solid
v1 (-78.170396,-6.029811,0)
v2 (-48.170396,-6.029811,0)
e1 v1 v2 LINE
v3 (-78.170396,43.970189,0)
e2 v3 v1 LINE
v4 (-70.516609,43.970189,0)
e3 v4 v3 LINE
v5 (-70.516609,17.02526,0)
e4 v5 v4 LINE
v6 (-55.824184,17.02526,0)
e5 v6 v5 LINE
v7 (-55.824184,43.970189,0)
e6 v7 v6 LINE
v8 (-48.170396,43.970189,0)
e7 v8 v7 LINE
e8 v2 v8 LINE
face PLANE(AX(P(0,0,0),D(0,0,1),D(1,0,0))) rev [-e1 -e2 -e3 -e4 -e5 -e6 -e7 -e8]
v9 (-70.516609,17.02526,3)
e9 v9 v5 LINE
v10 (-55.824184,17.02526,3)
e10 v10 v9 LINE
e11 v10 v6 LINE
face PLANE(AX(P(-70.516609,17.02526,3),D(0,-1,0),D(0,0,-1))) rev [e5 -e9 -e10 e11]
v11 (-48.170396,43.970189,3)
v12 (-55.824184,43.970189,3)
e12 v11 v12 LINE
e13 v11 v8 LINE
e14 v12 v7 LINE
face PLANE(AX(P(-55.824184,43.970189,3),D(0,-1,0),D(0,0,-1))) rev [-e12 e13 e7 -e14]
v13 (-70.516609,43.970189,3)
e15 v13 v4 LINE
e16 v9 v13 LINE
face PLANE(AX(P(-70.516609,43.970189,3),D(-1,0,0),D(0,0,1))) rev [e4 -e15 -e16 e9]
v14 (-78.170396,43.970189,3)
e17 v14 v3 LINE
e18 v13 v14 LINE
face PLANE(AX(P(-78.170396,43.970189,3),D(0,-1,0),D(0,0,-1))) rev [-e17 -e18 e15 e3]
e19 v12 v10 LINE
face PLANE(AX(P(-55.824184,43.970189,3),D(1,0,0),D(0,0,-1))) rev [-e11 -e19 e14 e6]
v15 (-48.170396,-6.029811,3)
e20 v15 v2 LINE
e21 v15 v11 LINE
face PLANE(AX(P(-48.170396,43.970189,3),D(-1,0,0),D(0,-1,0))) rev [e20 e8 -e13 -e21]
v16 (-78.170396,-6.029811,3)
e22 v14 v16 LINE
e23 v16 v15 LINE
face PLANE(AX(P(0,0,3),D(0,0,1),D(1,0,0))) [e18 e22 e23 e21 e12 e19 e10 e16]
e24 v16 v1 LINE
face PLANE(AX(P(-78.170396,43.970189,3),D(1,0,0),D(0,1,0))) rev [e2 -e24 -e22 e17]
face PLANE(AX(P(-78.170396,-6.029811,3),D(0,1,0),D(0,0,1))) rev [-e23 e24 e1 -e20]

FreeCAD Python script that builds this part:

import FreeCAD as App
import Part
import Sketcher
from FreeCAD import Vector
Q = App.Units.Quantity

doc = App.newDocument("Part")
body = doc.addObject("PartDesign::Body", "Body")

# Sketch on XY plane
sketch1 = body.newObject("Sketcher::SketchObject", "Sketch")
sketch1.AttachmentSupport = (doc.getObject("XY_Plane"), [""])
sketch1.MapMode = "FlatFace"
sketch1.addGeometry([
    Part.LineSegment(Vector(-48, 44, 0), Vector(-56, 44, 0)),  # 0
    Part.LineSegment(Vector(-56, 44, 0), Vector(-56, 17, 0)),  # 1
    Part.LineSegment(Vector(-56, 17, 0), Vector(-71, 17, 0)),  # 2
    Part.LineSegment(Vector(-71, 17, 0), Vector(-71, 44, 0)),  # 3
    Part.LineSegment(Vector(-71, 44, 0), Vector(-78, 44, 0)),  # 4
    Part.LineSegment(Vector(-78, 44, 0), Vector(-78, -6, 0)),  # 5
    Part.LineSegment(Vector(-78, -6, 0), Vector(-48, -6, 0)),  # 6
    Part.LineSegment(Vector(-48, -6, 0), Vector(-48, 44, 0)),  # 7
], False)
sketch1.addConstraint([
    Sketcher.Constraint("Coincident", 0, 2, 1, 1),
    Sketcher.Constraint("Coincident", 1, 2, 2, 1),
    Sketcher.Constraint("Coincident", 2, 2, 3, 1),
    Sketcher.Constraint("Coincident", 3, 2, 4, 1),
    Sketcher.Constraint("Coincident", 4, 2, 5, 1),
    Sketcher.Constraint("Coincident", 5, 2, 6, 1),
    Sketcher.Constraint("Coincident", 6, 2, 7, 1),
    Sketcher.Constraint("Coincident", 7, 2, 0, 1),
    Sketcher.Constraint("Horizontal", 0),
    Sketcher.Constraint("Vertical", 1),
    Sketcher.Constraint("Horizontal", 2),
    Sketcher.Constraint("Vertical", 3),
    Sketcher.Constraint("Horizontal", 4),
    Sketcher.Constraint("Vertical", 5),
    Sketcher.Constraint("Horizontal", 6),
    Sketcher.Constraint("Vertical", 7),
    Sketcher.Constraint("Horizontal", 0, 2, 3, 2),
    Sketcher.Constraint("Equal", 0, 4),
    Sketcher.Constraint("DistanceX", 6, 1, 6, 2, Q("30 mm")),
    Sketcher.Constraint("DistanceY", 5, 2, 5, 1, Q("50 mm")),
    Sketcher.Constraint("DistanceY", 1, 2, 1, 1, Q("26.944929 mm")),
    Sketcher.Constraint("DistanceX", 0, 2, 0, 1, Q("7.653787 mm")),
    Sketcher.Constraint("DistanceY", -1, 1, 0, 2, Q("43.970189 mm")),
    Sketcher.Constraint("DistanceX", 2, 2, -1, 1, Q("70.516609 mm")),
])
pad1 = body.newObject("PartDesign::Pad", "Pad")
pad1.Profile = sketch1
pad1.Length = 3

doc.recompute()
